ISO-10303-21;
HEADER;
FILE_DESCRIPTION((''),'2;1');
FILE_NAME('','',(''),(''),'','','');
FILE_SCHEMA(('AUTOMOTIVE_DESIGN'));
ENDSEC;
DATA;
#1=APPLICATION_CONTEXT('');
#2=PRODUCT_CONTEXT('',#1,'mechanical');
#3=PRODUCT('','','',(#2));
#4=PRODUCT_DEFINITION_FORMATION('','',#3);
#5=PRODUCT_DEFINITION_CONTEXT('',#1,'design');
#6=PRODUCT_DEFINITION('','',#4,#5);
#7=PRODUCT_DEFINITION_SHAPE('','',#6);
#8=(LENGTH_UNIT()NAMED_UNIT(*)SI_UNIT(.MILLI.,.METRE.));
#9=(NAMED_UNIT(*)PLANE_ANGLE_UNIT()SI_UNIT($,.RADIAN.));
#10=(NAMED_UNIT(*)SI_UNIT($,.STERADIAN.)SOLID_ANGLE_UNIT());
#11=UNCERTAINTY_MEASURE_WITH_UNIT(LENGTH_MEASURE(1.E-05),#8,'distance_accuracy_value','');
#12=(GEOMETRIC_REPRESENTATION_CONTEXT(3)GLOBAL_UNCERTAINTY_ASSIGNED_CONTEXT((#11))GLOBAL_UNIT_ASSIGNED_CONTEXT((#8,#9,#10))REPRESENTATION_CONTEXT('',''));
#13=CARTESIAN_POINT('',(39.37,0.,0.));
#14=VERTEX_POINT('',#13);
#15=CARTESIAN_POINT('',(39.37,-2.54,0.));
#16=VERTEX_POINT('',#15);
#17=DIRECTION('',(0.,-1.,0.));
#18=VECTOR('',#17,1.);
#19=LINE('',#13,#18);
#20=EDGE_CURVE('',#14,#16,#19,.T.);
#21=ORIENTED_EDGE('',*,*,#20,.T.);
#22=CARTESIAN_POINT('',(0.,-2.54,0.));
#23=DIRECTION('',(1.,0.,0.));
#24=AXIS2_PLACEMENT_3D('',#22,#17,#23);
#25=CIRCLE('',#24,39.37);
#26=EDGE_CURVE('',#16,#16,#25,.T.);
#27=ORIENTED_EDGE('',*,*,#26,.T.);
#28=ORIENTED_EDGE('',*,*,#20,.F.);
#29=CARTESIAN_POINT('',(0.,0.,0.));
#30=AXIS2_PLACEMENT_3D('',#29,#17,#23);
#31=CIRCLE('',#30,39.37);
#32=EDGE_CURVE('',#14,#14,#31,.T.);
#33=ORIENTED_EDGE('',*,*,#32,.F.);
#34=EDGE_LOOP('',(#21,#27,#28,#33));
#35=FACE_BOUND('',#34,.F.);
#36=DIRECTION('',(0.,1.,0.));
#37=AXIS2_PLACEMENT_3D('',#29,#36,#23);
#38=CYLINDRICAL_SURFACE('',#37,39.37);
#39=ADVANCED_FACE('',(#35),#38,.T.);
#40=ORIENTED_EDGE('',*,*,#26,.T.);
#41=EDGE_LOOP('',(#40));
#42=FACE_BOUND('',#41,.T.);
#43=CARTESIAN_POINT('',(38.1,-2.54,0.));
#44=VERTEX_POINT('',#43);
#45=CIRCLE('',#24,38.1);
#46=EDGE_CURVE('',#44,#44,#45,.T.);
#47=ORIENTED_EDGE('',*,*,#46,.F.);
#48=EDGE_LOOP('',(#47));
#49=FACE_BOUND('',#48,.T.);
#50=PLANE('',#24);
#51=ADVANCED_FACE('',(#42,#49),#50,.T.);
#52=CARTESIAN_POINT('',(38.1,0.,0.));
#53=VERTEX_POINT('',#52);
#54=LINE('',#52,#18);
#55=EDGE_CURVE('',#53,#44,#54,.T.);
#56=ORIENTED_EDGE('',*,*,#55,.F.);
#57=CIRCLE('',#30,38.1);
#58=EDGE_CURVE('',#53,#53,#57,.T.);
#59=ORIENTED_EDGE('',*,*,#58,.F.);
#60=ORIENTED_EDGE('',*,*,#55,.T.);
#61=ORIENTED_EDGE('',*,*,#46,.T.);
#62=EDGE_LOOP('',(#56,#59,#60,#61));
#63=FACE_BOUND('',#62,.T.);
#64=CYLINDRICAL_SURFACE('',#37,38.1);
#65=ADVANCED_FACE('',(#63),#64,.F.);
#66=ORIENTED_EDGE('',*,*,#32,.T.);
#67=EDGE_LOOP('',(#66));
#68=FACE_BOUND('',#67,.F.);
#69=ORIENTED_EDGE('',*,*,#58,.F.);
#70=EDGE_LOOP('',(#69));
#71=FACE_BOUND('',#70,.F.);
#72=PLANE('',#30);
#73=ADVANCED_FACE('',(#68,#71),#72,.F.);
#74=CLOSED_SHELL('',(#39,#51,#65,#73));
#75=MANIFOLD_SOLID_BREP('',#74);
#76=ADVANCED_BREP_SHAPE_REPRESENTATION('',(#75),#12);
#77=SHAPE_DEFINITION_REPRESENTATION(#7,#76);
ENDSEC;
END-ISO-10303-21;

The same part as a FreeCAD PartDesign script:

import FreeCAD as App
import Part
import Sketcher
Q = App.Units.Quantity

doc = App.newDocument("Part")
body = doc.addObject("PartDesign::Body", "Body")

# Sketch on XZ plane
sketch1 = doc.addObject("Sketcher::SketchObject", "Sketch")
body.addObject(sketch1)
sketch1.AttachmentSupport = (doc.XZ_Plane, [""])
sketch1.MapMode = "FlatFace"
sketch1.addGeometry([
    Part.Circle(App.Vector(0, 0, 0), App.Vector(0, 0, 1), 39),
    Part.Circle(App.Vector(0, 0, 0), App.Vector(0, 0, 1), 38),
], False)
sketch1.addConstraint([
    Sketcher.Constraint("Coincident", 0, 3, -1, 1),
    Sketcher.Constraint("Coincident", 1, 3, -1, 1),
    Sketcher.Constraint("Diameter", 1, Q("3 in")),
    Sketcher.Constraint("Diameter", 0, Q("3.1 in")),
])
pad1 = doc.addObject("PartDesign::Pad", "Pad")
body.addObject(pad1)
pad1.Profile = sketch1
pad1.Length = Q("0.1 in")

doc.recompute()
